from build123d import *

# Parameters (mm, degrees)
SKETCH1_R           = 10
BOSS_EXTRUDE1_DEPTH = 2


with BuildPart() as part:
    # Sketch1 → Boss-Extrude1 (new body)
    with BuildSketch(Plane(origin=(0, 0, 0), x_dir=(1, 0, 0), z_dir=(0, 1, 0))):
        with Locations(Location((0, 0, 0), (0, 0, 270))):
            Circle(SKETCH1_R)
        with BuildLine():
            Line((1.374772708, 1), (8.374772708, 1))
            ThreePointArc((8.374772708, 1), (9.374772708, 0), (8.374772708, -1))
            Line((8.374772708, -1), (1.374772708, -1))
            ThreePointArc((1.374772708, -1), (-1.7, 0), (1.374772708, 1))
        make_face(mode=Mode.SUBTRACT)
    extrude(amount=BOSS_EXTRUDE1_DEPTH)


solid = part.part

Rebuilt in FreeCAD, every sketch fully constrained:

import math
import FreeCAD as App
import Part
import Sketcher
Q = App.Units.Quantity

doc = App.newDocument("Part")
body = doc.addObject("PartDesign::Body", "Body")

# Sketch on XZ plane
sketch1 = body.newObject("Sketcher::SketchObject", "Sketch")
sketch1.AttachmentSupport = (doc.getObject("XZ_Plane"), [""])
sketch1.MapMode = "FlatFace"
sketch1.addGeometry(Part.Circle(App.Vector(0, 0, 0), App.Vector(0, 0, 1), 10), False)
sketch1.addGeometry(Part.ArcOfCircle(Part.Circle(App.Vector(0, 0, 0), App.Vector(0, 0, 1), 1.7), math.radians(36), math.radians(324)), False)
sketch1.addGeometry(Part.LineSegment(App.Vector(1.4, -1, 0), App.Vector(8.4, -1, 0)), False)
sketch1.addGeometry(Part.ArcOfCircle(Part.Circle(App.Vector(8.4, 0, 0), App.Vector(0, 0, 1), 1), math.radians(-90), math.radians(90)), False)
sketch1.addGeometry(Part.LineSegment(App.Vector(8.4, 1, 0), App.Vector(1.4, 1, 0)), False)
sketch1.addConstraint(Sketcher.Constraint("Coincident", 1, 2, 2, 1))
sketch1.addConstraint(Sketcher.Constraint("Tangent", 2, 2, 3, 1))
sketch1.addConstraint(Sketcher.Constraint("Tangent", 3, 2, 4, 1))
sketch1.addConstraint(Sketcher.Constraint("Coincident", 4, 2, 1, 1))
sketch1.addConstraint(Sketcher.Constraint("Horizontal", 2))
sketch1.addConstraint(Sketcher.Constraint("Horizontal", 4))
sketch1.addConstraint(Sketcher.Constraint("Coincident", 0, 3, -1, 1))
sketch1.addConstraint(Sketcher.Constraint("Coincident", 1, 3, -1, 1))
sketch1.addConstraint(Sketcher.Constraint("PointOnObject", 3, 3, -1))
sketch1.addConstraint(Sketcher.Constraint("Diameter", 0, Q("20 mm")))
sketch1.addConstraint(Sketcher.Constraint("Radius", 3, Q("1 mm")))
sketch1.addConstraint(Sketcher.Constraint("Radius", 1, Q("1.7 mm")))
sketch1.addConstraint(Sketcher.Constraint("DistanceX", 2, 1, 2, 2, Q("7 mm")))
pad1 = body.newObject("PartDesign::Pad", "Pad")
pad1.Profile = sketch1
pad1.Length = 2
pad1.Reversed = True

doc.recompute()
